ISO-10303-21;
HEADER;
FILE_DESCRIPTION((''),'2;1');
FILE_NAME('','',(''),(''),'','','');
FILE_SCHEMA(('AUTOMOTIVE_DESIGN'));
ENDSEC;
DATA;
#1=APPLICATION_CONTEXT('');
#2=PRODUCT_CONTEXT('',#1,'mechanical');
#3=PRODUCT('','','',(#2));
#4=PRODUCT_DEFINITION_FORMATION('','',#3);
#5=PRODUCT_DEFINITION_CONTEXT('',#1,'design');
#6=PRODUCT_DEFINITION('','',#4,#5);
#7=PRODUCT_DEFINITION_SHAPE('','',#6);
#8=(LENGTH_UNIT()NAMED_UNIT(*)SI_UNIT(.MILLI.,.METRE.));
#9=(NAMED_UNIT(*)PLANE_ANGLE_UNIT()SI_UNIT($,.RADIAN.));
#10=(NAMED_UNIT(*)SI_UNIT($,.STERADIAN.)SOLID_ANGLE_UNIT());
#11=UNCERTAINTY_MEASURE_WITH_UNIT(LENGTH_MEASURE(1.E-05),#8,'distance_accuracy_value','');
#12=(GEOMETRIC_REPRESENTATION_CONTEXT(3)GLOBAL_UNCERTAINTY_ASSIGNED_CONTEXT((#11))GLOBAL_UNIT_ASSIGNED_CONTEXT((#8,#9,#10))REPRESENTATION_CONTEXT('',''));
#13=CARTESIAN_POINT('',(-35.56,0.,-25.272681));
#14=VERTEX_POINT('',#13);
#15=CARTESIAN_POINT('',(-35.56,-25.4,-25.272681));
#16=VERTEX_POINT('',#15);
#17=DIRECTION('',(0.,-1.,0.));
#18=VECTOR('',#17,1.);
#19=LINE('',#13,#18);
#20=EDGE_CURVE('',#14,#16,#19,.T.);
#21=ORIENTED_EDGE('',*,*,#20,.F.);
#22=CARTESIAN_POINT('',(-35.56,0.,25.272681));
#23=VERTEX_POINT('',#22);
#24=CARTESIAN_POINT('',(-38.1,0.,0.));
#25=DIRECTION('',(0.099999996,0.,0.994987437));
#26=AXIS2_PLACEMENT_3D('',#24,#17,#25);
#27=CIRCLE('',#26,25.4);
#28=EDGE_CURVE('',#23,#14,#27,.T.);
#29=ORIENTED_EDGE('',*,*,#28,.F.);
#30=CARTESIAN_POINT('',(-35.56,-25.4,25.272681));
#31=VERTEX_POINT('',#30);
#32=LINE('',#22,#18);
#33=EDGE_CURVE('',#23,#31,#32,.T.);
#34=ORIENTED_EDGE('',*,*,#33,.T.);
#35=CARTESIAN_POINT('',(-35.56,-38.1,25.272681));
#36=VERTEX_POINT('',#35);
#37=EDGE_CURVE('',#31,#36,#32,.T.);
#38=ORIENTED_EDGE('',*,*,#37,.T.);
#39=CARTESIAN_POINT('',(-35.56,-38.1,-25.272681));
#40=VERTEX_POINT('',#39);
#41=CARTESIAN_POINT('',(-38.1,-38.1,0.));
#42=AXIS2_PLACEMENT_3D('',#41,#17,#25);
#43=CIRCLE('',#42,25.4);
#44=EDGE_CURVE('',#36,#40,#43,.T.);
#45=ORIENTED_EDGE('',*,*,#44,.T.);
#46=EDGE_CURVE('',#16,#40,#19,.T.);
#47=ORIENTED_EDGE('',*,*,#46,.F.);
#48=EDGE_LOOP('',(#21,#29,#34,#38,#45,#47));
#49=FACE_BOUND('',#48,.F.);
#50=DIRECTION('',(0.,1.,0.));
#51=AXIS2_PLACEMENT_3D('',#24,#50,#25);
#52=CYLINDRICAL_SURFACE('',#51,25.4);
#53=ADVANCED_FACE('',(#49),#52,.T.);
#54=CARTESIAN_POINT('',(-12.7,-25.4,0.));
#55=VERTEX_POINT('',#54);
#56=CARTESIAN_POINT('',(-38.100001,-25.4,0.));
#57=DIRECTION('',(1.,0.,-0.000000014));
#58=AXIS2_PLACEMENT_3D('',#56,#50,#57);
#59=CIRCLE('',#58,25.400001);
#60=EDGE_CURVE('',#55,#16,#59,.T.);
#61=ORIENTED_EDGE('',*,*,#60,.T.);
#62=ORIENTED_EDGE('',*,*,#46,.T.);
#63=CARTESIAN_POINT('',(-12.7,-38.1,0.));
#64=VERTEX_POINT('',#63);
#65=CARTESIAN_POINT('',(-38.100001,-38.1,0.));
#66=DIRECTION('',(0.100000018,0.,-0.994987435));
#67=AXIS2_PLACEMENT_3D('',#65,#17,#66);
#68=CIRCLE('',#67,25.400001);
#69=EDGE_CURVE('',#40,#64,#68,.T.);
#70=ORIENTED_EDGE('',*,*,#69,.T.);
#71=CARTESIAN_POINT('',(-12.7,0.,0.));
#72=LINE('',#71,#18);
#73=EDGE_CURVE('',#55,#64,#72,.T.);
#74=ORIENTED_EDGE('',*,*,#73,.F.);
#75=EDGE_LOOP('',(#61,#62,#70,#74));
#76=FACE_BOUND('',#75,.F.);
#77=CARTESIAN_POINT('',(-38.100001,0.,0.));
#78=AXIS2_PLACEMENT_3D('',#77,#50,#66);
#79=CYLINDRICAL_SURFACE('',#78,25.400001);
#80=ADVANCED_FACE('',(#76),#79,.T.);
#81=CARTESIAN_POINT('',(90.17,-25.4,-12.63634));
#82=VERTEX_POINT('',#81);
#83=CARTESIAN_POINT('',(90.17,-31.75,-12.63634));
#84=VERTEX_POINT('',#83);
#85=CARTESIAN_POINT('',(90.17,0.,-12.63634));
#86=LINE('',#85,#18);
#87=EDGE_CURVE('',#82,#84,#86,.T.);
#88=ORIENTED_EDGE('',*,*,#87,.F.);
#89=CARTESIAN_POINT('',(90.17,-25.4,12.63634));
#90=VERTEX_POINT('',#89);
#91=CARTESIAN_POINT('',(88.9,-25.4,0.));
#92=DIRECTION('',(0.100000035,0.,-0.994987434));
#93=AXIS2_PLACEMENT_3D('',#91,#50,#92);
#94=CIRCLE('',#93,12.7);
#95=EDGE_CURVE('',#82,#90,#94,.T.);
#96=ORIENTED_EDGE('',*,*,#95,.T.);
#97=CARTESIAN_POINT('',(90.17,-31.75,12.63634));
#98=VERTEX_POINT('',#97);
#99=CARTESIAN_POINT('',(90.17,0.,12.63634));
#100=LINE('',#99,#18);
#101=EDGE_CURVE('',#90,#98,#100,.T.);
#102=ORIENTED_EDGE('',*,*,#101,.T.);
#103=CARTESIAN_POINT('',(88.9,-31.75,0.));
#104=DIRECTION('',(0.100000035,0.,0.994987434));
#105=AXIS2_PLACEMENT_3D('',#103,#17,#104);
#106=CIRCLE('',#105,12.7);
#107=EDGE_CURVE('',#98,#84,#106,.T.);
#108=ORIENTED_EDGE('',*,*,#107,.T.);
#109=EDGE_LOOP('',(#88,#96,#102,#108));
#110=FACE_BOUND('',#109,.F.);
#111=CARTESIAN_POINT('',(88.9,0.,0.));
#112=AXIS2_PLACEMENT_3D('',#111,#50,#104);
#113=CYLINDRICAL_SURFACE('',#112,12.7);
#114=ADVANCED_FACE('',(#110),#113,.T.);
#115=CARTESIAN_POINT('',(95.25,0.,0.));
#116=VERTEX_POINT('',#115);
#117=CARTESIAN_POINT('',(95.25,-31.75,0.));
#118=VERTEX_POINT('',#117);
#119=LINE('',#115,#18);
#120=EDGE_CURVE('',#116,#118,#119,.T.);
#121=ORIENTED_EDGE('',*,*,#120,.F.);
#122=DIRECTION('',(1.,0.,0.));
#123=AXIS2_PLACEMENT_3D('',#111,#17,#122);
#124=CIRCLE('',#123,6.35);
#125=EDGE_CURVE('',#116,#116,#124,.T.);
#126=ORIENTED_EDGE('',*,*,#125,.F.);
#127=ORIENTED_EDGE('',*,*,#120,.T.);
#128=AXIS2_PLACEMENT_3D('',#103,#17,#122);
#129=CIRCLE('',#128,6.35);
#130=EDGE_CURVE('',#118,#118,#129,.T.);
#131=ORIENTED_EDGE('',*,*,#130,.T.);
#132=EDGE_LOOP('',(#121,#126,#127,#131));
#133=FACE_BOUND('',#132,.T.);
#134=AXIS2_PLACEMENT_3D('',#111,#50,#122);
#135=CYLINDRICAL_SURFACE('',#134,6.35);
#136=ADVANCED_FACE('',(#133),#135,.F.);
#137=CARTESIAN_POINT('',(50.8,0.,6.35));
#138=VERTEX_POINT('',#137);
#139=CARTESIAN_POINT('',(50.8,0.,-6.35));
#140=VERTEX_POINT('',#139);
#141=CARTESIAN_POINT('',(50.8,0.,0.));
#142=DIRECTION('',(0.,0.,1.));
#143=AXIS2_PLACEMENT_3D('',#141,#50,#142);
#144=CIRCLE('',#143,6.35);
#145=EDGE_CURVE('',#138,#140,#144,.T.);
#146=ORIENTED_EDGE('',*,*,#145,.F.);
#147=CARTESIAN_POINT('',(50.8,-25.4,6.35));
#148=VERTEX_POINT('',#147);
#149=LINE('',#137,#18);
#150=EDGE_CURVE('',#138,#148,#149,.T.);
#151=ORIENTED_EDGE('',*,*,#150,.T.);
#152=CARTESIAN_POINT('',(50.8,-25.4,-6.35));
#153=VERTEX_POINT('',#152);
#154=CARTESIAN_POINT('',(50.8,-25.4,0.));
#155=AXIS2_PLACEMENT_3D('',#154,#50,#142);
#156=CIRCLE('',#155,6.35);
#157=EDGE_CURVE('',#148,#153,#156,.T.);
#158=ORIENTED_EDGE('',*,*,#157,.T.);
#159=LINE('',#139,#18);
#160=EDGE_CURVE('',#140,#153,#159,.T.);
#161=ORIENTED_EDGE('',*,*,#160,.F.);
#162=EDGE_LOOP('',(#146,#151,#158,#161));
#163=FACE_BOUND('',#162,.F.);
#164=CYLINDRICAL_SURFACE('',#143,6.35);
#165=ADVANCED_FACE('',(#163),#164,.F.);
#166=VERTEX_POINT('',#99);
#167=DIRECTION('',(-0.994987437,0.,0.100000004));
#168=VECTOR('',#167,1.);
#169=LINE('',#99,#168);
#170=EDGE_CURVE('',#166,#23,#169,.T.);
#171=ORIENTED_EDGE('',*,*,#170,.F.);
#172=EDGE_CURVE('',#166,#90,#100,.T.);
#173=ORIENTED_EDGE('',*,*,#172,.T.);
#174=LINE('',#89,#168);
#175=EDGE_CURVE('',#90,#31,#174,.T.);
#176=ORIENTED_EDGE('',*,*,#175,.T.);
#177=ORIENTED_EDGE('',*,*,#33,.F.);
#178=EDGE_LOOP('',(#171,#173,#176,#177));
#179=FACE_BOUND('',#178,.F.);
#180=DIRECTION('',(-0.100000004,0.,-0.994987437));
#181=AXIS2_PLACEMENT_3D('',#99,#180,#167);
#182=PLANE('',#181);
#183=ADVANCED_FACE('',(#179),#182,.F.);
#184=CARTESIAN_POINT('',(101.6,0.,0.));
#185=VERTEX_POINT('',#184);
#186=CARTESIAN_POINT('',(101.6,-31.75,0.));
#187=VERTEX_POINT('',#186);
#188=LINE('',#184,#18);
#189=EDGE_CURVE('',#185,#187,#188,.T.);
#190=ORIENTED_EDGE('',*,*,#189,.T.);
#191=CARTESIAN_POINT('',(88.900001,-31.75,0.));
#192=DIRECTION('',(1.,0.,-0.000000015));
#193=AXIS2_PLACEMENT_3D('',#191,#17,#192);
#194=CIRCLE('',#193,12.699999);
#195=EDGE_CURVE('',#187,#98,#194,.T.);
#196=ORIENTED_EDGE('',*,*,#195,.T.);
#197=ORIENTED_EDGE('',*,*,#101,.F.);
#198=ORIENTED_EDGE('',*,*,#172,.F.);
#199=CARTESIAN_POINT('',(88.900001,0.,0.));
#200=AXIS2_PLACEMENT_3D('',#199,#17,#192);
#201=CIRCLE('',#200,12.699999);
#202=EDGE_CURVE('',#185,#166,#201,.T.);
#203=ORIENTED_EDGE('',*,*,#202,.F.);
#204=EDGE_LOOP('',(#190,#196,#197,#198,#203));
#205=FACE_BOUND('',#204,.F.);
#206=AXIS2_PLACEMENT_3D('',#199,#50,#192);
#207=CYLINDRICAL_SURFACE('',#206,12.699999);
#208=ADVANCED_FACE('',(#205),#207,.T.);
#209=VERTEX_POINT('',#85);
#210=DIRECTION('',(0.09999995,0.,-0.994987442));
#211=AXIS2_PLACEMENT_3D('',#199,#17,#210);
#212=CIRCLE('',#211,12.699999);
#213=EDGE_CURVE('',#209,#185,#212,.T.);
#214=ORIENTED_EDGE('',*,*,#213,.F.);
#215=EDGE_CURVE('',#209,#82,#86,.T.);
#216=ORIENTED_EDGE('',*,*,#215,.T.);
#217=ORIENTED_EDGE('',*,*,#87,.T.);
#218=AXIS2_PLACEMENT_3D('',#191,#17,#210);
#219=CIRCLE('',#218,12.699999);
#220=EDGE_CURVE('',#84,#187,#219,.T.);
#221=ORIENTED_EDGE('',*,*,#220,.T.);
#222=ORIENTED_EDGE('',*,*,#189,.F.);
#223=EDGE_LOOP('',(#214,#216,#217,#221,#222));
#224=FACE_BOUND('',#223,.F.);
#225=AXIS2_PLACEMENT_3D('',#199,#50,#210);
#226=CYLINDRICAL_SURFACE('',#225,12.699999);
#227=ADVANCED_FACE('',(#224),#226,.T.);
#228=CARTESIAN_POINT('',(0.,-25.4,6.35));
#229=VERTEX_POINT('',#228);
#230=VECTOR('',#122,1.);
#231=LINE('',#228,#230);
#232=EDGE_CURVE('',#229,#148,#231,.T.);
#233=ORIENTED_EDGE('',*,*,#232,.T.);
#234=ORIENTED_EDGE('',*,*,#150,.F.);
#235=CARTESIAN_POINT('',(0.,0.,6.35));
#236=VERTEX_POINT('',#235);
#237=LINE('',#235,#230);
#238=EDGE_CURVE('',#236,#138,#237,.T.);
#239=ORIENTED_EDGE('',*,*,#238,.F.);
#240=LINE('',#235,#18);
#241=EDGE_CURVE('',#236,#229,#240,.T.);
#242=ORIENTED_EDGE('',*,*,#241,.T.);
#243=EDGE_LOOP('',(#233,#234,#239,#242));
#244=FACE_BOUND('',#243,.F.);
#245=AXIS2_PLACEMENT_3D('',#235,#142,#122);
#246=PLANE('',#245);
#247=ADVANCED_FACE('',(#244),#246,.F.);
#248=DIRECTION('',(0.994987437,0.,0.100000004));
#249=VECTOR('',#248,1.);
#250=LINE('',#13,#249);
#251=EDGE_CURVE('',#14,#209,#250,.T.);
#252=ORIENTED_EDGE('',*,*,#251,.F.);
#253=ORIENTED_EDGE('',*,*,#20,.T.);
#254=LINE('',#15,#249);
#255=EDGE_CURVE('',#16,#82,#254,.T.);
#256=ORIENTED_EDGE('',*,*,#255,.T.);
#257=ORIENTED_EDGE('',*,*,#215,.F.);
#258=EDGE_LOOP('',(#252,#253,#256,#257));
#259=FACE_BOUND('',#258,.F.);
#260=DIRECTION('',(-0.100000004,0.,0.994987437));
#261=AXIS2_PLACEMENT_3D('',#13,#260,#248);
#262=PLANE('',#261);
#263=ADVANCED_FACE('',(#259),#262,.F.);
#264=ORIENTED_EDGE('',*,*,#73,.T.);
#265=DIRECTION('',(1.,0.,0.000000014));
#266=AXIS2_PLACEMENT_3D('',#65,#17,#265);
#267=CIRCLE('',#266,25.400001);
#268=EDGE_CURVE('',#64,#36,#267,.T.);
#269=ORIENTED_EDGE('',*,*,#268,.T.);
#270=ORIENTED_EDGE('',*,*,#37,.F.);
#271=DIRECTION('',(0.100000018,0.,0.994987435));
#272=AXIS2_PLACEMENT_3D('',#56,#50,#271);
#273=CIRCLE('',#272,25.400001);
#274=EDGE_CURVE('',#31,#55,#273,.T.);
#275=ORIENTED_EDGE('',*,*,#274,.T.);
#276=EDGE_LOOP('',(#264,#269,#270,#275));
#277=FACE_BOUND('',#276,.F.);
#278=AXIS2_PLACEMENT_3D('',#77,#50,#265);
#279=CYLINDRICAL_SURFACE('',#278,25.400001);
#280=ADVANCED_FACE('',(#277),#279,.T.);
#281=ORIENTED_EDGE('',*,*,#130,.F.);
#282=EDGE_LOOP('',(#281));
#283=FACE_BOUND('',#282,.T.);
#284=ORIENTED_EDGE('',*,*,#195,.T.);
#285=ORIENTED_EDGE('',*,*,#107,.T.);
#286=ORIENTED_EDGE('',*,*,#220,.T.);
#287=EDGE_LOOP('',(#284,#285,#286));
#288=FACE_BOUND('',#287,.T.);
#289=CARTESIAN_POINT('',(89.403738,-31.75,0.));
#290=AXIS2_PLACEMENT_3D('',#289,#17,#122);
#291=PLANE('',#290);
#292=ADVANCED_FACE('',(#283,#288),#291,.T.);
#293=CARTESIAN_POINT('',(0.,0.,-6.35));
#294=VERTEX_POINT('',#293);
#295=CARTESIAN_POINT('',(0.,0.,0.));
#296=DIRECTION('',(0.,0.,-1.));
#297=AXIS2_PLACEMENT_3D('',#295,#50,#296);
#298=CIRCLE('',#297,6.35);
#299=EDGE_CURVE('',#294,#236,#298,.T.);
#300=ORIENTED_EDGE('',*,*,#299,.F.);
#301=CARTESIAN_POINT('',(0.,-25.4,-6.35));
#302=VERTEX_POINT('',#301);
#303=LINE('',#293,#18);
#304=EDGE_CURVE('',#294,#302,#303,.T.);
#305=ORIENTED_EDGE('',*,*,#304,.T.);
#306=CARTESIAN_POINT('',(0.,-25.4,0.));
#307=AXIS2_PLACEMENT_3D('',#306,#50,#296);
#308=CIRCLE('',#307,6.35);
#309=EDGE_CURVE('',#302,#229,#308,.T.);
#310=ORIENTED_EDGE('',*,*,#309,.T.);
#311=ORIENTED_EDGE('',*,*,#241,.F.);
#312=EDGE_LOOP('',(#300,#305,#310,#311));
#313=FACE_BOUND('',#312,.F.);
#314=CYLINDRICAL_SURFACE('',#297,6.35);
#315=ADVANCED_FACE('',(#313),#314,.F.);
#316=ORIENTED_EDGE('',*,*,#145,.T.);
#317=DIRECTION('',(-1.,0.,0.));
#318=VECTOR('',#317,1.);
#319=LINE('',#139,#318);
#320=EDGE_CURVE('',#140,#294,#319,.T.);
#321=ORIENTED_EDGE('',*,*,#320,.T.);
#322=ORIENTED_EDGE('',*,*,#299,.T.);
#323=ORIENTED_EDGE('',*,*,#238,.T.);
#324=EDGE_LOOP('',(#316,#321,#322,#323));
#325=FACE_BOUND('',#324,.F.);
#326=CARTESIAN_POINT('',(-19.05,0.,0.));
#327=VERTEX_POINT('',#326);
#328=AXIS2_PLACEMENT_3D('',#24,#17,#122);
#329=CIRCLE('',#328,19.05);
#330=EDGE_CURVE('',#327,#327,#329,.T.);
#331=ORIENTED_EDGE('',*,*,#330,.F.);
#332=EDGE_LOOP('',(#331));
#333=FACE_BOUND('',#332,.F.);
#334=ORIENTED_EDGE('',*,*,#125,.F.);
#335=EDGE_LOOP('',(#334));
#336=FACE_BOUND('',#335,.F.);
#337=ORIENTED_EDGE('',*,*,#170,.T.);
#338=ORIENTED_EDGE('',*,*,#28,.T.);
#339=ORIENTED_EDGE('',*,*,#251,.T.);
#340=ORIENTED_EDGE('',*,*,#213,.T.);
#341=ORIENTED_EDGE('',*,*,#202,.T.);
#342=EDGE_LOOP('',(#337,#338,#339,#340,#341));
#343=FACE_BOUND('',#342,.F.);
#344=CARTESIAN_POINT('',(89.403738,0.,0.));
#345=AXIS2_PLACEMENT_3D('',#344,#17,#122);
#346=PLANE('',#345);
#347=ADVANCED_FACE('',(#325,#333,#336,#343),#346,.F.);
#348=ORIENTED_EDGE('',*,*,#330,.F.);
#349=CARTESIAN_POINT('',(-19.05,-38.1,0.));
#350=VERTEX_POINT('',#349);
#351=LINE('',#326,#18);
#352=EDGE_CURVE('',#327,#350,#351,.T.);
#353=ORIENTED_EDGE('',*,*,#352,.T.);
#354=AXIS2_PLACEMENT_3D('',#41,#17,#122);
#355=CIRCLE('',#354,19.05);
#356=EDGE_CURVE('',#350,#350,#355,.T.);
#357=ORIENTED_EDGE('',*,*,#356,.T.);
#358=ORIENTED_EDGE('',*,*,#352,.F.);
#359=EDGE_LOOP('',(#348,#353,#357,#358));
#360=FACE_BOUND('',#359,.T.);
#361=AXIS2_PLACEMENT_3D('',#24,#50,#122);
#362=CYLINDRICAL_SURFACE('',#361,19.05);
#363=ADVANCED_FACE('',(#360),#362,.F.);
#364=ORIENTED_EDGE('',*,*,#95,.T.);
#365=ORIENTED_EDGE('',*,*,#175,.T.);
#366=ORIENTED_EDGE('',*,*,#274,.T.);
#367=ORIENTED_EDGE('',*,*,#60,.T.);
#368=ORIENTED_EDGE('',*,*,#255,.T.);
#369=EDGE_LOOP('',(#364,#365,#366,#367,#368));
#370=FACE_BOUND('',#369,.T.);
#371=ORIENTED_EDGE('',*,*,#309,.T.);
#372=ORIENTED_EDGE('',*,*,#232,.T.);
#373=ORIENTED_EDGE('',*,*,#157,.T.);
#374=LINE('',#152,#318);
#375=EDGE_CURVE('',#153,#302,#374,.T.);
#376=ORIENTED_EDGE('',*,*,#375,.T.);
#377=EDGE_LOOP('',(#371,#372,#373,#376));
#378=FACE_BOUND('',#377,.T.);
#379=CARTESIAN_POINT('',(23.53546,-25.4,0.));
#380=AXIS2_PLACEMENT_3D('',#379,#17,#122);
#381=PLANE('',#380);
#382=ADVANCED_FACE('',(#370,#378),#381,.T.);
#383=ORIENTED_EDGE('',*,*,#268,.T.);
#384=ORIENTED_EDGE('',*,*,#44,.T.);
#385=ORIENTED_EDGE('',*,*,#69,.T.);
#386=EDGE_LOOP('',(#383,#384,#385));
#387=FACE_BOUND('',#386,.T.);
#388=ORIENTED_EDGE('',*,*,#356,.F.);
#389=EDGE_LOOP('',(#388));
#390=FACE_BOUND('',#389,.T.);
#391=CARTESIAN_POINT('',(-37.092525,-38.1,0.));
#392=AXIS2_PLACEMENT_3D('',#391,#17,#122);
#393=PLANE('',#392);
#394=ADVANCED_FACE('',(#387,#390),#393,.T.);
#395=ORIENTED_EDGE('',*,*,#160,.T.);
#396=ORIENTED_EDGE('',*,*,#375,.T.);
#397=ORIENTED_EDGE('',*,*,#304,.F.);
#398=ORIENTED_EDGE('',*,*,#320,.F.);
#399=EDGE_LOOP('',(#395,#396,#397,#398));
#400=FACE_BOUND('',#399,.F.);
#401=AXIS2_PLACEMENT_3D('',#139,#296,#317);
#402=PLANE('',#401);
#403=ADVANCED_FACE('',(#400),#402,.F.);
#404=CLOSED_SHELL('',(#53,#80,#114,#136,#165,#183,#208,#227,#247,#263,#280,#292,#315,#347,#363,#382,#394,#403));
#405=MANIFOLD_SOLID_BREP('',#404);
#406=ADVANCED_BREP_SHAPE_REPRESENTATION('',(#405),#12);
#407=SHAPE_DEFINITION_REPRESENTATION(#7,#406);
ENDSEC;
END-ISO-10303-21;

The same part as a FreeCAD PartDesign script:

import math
import FreeCAD as App
import Part
import Sketcher

V = App.Vector
Q = App.Units.Quantity

doc = App.newDocument("Part")
body = doc.addObject("PartDesign::Body", "Body")

sketch1 = body.newObject("Sketcher::SketchObject", "Sketch")
sketch1.AttachmentSupport = (doc.getObject("XZ_Plane"), [""])
sketch1.MapMode = "FlatFace"
sketch1.addGeometry([
    Part.ArcOfCircle(Part.Circle(V(-38, 0, 0), V(0, 0, 1), 25), math.radians(-84), math.radians(0)),
    Part.ArcOfCircle(Part.Circle(V(-38, 0, 0), V(0, 0, 1), 25), math.radians(0), math.radians(84)),
    Part.ArcOfCircle(Part.Circle(V(-38, 0, 0), V(0, 0, 1), 25), math.radians(84), math.radians(276)),
    Part.Circle(V(-38, 0, 0), V(0, 0, 1), 19),
], False)
sketch1.addConstraint([
    Sketcher.Constraint("Tangent", 0, 2, 1, 1),
    Sketcher.Constraint("Tangent", 1, 2, 2, 1),
    Sketcher.Constraint("Tangent", 2, 2, 0, 1),
    Sketcher.Constraint("Coincident", 3, 3, 0, 3),
    Sketcher.Constraint("Symmetric", 1, 2, 2, 2, -1),
    Sketcher.Constraint("PointOnObject", 0, 2, -1),
    Sketcher.Constraint("Radius", 0, Q("1 in")),
    Sketcher.Constraint("Diameter", 3, Q("1.5 in")),
    Sketcher.Constraint("DistanceX", 0, 3, -1, 1, Q("1.5 in")),
    Sketcher.Constraint("DistanceX", 1, 2, -1, 1, Q("1.4 in")),
])
pad1 = body.newObject("PartDesign::Pad", "Pad")
pad1.Profile = sketch1
pad1.Length = Q("1.5 in")

sketch2 = body.newObject("Sketcher::SketchObject", "Sketch001")
sketch2.AttachmentSupport = (doc.getObject("XZ_Plane"), [""])
sketch2.MapMode = "FlatFace"
sketch2.addGeometry([
    Part.ArcOfCircle(Part.Circle(V(-38, 0, 0), V(0, 0, 1), 25), math.radians(0), math.radians(84)),
    Part.ArcOfCircle(Part.Circle(V(-38, 0, 0), V(0, 0, 1), 25), math.radians(-84), math.radians(0)),
    Part.LineSegment(V(-36, -25, 0), V(90, -13, 0)),
    Part.ArcOfCircle(Part.Circle(V(89, 0, 0), V(0, 0, 1), 13), math.radians(84), math.radians(276)),
    Part.LineSegment(V(90, 13, 0), V(-36, 25, 0)),
    Part.LineSegment(V(51, -6, 0), V(0, -6, 0)),
    Part.ArcOfCircle(Part.Circle(V(0, 0, 0), V(0, 0, 1), 6), math.radians(90), math.radians(270)),
    Part.LineSegment(V(0, 6, 0), V(51, 6, 0)),
    Part.ArcOfCircle(Part.Circle(V(51, 0, 0), V(0, 0, 1), 6), math.radians(-90), math.radians(90)),
], False)
sketch2.addConstraint([
    Sketcher.Constraint("Tangent", 0, 1, 1, 2),
    Sketcher.Constraint("Tangent", 1, 1, 2, 1),
    Sketcher.Constraint("Tangent", 2, 2, 3, 2),
    Sketcher.Constraint("Tangent", 3, 1, 4, 1),
    Sketcher.Constraint("Tangent", 4, 2, 0, 2),
    Sketcher.Constraint("Tangent", 5, 2, 6, 2),
    Sketcher.Constraint("Tangent", 6, 1, 7, 1),
    Sketcher.Constraint("Tangent", 7, 2, 8, 2),
    Sketcher.Constraint("Tangent", 8, 1, 5, 1),
    Sketcher.Constraint("Horizontal", 5),
    Sketcher.Constraint("Horizontal", 7),
    Sketcher.Constraint("Coincident", 6, 3, -1, 1),
    Sketcher.Constraint("Equal", 0, 1),
    Sketcher.Constraint("Symmetric", 2, 2, 3, 1, -1),
    Sketcher.Constraint("PointOnObject", 0, 1, -1),
    Sketcher.Constraint("Radius", 0, Q("1 in")),
    Sketcher.Constraint("Radius", 3, Q("0.5 in")),
    Sketcher.Constraint("DistanceX", 5, 2, 5, 1, Q("2 in")),
    Sketcher.Constraint("Radius", 6, Q("0.25 in")),
    Sketcher.Constraint("DistanceX", 0, 3, 3, 3, Q("5 in")),
    Sketcher.Constraint("DistanceX", 0, 3, -1, 1, Q("1.5 in")),
])
pad2 = body.newObject("PartDesign::Pad", "Pad001")
pad2.Profile = sketch2
pad2.Length = Q("1 in")

sketch3 = body.newObject("Sketcher::SketchObject", "Sketch002")
sketch3.AttachmentSupport = (doc.getObject("XZ_Plane"), [""])
sketch3.MapMode = "FlatFace"
sketch3.addGeometry([
    Part.ArcOfCircle(Part.Circle(V(89, 0, 0), V(0, 0, 1), 13), math.radians(0), math.radians(84)),
    Part.ArcOfCircle(Part.Circle(V(89, 0, 0), V(0, 0, 1), 13), math.radians(84), math.radians(276)),
    Part.ArcOfCircle(Part.Circle(V(89, 0, 0), V(0, 0, 1), 13), math.radians(-84), math.radians(0)),
    Part.Circle(V(89, 0, 0), V(0, 0, 1), 6),
], False)
sketch3.addConstraint([
    Sketcher.Constraint("Tangent", 0, 2, 1, 1),
    Sketcher.Constraint("Tangent", 1, 2, 2, 1),
    Sketcher.Constraint("Tangent", 2, 2, 0, 1),
    Sketcher.Constraint("Coincident", 3, 3, 0, 3),
    Sketcher.Constraint("Symmetric", 0, 2, 1, 2, -1),
    Sketcher.Constraint("PointOnObject", 2, 2, -1),
    Sketcher.Constraint("Diameter", 3, Q("0.5 in")),
    Sketcher.Constraint("Radius", 0, Q("0.5 in")),
    Sketcher.Constraint("DistanceX", -1, 1, 2, 2, Q("4 in")),
    Sketcher.Constraint("DistanceX", -1, 1, 0, 2, Q("3.55 in")),
])
pad3 = body.newObject("PartDesign::Pad", "Pad002")
pad3.Profile = sketch3
pad3.Length = Q("1.25 in")

doc.recompute()
